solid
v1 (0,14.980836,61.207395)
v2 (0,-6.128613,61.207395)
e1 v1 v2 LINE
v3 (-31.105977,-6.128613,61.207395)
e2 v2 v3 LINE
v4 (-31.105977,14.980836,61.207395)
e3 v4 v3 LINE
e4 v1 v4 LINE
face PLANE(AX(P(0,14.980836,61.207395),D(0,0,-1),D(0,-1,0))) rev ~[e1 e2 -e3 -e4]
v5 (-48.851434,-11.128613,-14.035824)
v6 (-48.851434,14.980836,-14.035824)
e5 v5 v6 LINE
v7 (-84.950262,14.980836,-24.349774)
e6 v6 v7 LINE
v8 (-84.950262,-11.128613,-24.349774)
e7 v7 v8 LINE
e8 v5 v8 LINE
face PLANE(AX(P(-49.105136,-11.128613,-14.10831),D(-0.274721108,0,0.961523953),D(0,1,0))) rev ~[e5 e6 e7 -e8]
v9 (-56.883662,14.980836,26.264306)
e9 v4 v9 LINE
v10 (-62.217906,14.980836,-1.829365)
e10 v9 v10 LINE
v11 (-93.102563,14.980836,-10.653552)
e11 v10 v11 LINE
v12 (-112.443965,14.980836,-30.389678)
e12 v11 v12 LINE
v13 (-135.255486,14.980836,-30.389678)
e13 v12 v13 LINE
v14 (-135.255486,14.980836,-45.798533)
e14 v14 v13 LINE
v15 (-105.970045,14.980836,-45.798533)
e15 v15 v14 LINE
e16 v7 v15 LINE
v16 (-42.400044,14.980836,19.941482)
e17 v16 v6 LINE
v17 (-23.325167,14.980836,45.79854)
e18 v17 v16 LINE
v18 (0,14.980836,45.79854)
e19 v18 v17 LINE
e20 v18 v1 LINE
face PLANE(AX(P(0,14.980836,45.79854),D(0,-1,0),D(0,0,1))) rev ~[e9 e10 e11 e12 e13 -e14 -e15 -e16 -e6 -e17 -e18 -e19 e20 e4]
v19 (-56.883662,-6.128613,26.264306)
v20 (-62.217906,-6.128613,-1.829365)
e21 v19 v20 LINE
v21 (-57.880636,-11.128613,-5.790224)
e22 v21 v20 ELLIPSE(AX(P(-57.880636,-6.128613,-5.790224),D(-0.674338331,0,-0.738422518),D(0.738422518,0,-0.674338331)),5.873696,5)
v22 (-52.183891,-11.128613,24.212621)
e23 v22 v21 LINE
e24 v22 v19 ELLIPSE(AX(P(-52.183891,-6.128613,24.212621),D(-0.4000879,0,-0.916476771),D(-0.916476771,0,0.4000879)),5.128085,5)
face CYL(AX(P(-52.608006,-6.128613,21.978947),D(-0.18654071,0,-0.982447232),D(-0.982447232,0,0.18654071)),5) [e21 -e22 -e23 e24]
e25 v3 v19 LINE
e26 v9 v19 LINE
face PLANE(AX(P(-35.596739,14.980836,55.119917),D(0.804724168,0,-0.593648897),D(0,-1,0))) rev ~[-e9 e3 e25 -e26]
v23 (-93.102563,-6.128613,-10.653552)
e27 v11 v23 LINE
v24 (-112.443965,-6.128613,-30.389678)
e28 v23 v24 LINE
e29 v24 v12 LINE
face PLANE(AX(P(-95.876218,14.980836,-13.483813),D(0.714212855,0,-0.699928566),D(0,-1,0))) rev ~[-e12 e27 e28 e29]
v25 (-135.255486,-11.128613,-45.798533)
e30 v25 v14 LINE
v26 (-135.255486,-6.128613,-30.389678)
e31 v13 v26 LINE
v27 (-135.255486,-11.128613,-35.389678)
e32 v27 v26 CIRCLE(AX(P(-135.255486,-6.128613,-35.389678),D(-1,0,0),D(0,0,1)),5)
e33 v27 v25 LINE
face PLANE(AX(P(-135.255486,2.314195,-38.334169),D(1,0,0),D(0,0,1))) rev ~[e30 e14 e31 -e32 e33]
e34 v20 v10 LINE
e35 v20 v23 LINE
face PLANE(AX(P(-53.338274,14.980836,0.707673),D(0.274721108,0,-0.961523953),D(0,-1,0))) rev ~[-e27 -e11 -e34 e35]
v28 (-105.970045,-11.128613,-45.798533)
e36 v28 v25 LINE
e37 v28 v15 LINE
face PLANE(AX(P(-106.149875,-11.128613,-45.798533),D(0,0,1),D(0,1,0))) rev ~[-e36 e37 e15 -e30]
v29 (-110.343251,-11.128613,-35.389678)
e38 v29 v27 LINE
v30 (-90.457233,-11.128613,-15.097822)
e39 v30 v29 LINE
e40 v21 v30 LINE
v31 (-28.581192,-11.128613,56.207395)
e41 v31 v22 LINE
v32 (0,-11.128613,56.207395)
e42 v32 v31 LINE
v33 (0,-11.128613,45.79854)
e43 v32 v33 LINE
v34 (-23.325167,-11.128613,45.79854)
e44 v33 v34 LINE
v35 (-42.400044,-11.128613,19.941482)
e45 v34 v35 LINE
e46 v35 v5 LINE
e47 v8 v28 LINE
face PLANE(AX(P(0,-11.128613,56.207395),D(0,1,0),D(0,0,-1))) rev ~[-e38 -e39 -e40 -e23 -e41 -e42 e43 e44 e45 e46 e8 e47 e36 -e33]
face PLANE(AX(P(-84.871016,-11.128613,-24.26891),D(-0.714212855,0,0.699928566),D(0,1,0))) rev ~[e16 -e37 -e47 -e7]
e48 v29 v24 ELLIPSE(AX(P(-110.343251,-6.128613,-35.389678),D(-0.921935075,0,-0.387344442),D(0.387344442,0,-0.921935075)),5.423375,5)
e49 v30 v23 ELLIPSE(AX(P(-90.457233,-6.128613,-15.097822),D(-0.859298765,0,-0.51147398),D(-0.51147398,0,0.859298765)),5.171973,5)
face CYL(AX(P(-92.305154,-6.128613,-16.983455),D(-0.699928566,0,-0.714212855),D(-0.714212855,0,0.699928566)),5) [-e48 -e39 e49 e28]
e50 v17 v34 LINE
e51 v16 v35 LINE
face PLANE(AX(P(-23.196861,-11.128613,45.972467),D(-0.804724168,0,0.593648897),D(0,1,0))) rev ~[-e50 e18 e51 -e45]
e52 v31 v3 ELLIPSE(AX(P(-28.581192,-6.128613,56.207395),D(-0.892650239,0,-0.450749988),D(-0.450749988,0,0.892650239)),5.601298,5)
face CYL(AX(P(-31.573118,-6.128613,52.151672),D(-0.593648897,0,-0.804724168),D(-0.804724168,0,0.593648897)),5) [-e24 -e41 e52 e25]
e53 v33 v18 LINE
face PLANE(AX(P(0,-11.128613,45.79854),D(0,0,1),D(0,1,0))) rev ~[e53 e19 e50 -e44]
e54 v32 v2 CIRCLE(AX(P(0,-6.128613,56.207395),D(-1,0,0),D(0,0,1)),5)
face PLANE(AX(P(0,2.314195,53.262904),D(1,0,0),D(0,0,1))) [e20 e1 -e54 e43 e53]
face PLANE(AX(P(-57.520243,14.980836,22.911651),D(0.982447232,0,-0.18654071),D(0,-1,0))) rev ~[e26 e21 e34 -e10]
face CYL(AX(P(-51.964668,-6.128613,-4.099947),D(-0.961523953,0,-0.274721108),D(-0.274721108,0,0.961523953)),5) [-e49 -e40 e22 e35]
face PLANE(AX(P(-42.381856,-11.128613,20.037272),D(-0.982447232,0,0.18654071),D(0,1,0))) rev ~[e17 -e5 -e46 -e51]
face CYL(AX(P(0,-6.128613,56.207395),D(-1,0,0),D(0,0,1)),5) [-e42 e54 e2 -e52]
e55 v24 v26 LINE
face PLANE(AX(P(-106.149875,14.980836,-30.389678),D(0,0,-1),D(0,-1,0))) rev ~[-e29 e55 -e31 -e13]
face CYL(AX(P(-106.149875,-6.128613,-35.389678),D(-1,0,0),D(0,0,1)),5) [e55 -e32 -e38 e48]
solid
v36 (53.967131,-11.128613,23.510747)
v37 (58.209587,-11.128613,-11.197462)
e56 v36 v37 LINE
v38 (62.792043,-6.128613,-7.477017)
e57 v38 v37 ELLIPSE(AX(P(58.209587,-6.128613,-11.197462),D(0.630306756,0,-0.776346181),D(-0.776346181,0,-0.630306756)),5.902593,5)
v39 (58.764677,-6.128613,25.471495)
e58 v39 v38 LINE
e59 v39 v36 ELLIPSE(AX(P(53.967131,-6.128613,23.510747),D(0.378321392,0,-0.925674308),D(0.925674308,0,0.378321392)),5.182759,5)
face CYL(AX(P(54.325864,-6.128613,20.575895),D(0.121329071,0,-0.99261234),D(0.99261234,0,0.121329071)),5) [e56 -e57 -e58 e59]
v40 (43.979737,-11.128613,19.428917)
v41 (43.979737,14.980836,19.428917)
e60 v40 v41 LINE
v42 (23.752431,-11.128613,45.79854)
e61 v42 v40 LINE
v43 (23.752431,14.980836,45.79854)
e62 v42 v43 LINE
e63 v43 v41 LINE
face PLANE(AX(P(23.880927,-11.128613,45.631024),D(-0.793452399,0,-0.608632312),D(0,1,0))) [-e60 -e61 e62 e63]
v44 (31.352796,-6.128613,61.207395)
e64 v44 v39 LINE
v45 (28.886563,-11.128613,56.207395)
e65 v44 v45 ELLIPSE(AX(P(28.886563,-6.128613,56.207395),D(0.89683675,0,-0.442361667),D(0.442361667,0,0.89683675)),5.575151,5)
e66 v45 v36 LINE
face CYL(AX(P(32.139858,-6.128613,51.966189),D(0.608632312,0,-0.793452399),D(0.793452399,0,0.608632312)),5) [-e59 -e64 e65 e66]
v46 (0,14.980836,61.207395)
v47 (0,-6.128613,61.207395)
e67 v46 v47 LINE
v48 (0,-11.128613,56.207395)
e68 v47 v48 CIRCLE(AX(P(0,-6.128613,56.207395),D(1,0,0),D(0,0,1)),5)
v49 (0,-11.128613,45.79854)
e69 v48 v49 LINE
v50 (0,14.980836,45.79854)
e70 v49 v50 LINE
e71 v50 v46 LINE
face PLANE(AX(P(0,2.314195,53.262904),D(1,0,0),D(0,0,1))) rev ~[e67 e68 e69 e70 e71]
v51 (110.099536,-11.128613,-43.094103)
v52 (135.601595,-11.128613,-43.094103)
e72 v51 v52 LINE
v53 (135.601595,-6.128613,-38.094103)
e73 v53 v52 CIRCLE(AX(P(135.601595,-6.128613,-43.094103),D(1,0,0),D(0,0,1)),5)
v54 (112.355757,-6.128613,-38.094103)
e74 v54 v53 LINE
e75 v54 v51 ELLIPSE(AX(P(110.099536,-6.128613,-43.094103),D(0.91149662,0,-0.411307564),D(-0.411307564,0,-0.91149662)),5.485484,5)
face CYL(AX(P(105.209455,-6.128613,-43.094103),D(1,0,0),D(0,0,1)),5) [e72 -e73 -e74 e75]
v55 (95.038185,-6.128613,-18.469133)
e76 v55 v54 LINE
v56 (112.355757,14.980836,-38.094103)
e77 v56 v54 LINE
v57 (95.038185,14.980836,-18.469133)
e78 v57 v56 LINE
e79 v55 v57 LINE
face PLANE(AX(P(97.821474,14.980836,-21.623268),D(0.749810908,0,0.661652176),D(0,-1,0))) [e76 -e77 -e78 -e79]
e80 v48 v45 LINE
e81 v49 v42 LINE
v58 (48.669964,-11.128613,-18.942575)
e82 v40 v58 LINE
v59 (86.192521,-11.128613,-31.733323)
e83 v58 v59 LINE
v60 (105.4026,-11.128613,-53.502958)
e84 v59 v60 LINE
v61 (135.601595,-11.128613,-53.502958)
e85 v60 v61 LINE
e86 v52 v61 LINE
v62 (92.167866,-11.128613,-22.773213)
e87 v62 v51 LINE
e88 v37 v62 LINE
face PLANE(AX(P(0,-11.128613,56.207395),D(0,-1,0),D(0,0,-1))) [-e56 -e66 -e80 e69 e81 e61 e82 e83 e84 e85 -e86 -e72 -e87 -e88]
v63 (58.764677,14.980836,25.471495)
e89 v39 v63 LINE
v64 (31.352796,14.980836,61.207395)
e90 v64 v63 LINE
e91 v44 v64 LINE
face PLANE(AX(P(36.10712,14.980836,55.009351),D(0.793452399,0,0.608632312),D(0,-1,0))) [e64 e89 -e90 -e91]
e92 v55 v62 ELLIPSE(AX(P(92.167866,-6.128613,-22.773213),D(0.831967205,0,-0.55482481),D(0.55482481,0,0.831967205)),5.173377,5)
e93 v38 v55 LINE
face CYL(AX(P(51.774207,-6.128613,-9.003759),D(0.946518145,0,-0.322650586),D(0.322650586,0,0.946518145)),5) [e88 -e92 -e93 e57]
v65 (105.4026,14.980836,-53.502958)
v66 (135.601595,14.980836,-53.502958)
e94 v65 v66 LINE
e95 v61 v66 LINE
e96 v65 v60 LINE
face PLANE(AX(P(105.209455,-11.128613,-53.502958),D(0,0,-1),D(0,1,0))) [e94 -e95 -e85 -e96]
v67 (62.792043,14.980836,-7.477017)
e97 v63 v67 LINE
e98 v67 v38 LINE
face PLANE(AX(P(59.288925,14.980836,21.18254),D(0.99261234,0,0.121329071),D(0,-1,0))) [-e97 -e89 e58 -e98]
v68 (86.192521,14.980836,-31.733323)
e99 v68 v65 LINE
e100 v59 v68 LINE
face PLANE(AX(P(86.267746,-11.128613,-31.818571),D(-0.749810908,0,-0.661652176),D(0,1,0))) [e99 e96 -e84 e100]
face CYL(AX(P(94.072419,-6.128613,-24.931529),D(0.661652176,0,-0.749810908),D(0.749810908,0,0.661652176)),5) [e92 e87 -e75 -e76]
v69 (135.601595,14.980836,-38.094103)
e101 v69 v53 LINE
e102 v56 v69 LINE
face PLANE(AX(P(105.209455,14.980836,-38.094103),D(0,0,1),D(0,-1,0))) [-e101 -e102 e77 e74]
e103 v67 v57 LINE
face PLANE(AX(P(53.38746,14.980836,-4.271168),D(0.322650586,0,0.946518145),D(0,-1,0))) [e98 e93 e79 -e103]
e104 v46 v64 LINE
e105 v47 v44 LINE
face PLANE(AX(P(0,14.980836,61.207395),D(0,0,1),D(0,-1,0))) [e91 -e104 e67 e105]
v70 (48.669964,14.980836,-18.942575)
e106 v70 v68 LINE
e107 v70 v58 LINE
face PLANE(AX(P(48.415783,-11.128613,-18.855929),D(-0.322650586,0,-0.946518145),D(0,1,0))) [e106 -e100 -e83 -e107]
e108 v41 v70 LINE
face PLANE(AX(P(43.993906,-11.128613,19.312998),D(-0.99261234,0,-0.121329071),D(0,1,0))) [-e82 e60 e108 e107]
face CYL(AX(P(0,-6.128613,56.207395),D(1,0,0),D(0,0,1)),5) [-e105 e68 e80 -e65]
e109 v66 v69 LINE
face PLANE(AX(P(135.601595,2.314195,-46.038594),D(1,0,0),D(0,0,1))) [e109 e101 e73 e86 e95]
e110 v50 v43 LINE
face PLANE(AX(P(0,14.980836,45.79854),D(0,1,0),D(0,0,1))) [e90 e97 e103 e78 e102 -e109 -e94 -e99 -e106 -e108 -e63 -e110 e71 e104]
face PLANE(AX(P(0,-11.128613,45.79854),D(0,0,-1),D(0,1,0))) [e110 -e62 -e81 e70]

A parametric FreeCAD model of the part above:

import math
import FreeCAD as App
import Part
import Sketcher
from FreeCAD import Vector

doc = App.newDocument("Part")
body = doc.addObject("PartDesign::Body", "Body")

sketch1 = doc.addObject("Sketcher::SketchObject", "Sketch")
body.addObject(sketch1)
sketch1.AttachmentSupport = (doc.YZ_Plane, [""])
sketch1.MapMode = "FlatFace"
sketch1.addGeometry(Part.LineSegment(Vector(15, 61, 0), Vector(-6, 61, 0)), False)
sketch1.addGeometry(Part.ArcOfCircle(Part.Circle(Vector(-6, 56, 0), Vector(0, 0, 1), 5), math.radians(90), math.radians(180)), False)
sketch1.addGeometry(Part.LineSegment(Vector(-11, 56, 0), Vector(-11, 46, 0)), False)
sketch1.addGeometry(Part.LineSegment(Vector(-11, 46, 0), Vector(15, 46, 0)), False)
sketch1.addGeometry(Part.LineSegment(Vector(15, 46, 0), Vector(15, 61, 0)), False)
sketch1.addConstraint(Sketcher.Constraint("Tangent", 0, 2, 1, 1))
sketch1.addConstraint(Sketcher.Constraint("Tangent", 1, 2, 2, 1))
sketch1.addConstraint(Sketcher.Constraint("Coincident", 2, 2, 3, 1))
sketch1.addConstraint(Sketcher.Constraint("Coincident", 3, 2, 4, 1))
sketch1.addConstraint(Sketcher.Constraint("Coincident", 4, 2, 0, 1))
sketch1.addConstraint(Sketcher.Constraint("Horizontal", 0))
sketch1.addConstraint(Sketcher.Constraint("Vertical", 2))
sketch1.addConstraint(Sketcher.Constraint("Horizontal", 3))
sketch1.addConstraint(Sketcher.Constraint("Vertical", 4))
sketch1.addConstraint(Sketcher.Constraint("Radius", 1, 5.0))
sketch1.addConstraint(Sketcher.Constraint("DistanceX", 0, 2, 0, 1, 21.109449))
sketch1.addConstraint(Sketcher.Constraint("DistanceY", 2, 2, 2, 1, 10.408855))
sketch1.addConstraint(Sketcher.Constraint("DistanceY", -1, 1, 2, 2, 45.79854))
sketch1.addConstraint(Sketcher.Constraint("DistanceX", 1, 3, -1, 1, 6.128613))

sketch2 = doc.addObject("Sketcher::SketchObject", "Sketch001")
body.addObject(sketch2)
sketch2.AttachmentSupport = (doc.XZ_Plane, [""])
sketch2.MapMode = "FlatFace"
sketch2.addGeometry(Part.LineSegment(Vector(0, 46, 0), Vector(-24, 46, 0)), False)
sketch2.addGeometry(Part.LineSegment(Vector(-24, 46, 0), Vector(-43, 20, 0)), False)
sketch2.addGeometry(Part.LineSegment(Vector(-43, 20, 0), Vector(-49, -14, 0)), False)
sketch2.addGeometry(Part.LineSegment(Vector(-49, -14, 0), Vector(-85, -24, 0)), False)
sketch2.addGeometry(Part.LineSegment(Vector(-85, -24, 0), Vector(-106, -45, 0)), False)
sketch2.addGeometry(Part.LineSegment(Vector(-106, -45, 0), Vector(-135, -45, 0)), False)
sketch2.addConstraint(Sketcher.Constraint("Coincident", 0, 2, 1, 1))
sketch2.addConstraint(Sketcher.Constraint("Coincident", 1, 2, 2, 1))
sketch2.addConstraint(Sketcher.Constraint("Coincident", 2, 2, 3, 1))
sketch2.addConstraint(Sketcher.Constraint("Coincident", 3, 2, 4, 1))
sketch2.addConstraint(Sketcher.Constraint("Coincident", 4, 2, 5, 1))
sketch2.addConstraint(Sketcher.Constraint("Horizontal", 0))
sketch2.addConstraint(Sketcher.Constraint("Horizontal", 5))
sketch2.addConstraint(Sketcher.Constraint("PointOnObject", 0, 1, -2))
sketch2.addConstraint(Sketcher.Constraint("DistanceX", 0, 2, 0, 1, 23.5413))
sketch2.addConstraint(Sketcher.Constraint("DistanceX", 5, 2, 5, 1, 29.105611))
sketch2.addConstraint(Sketcher.Constraint("Distance", 1, 32.445211))
sketch2.addConstraint(Sketcher.Constraint("DistanceY", -1, 1, 0, 1, 46.226561))
sketch2.addConstraint(Sketcher.Constraint("DistanceY", 2, 2, -1, 1, 13.696758))
sketch2.addConstraint(Sketcher.Constraint("DistanceY", 4, 2, -1, 1, 45.370512))
sketch2.addConstraint(Sketcher.Constraint("DistanceX", 2, 2, 1, 2, 6.420359))
sketch2.addConstraint(Sketcher.Constraint("DistanceX", 3, 2, 2, 2, 35.953991))
sketch2.addConstraint(Sketcher.Constraint("DistanceY", 3, 2, 2, 2, 10.272568))
sketch2.addConstraint(Sketcher.Constraint("DistanceY", 3, 2, 1, 2, 44.086441))
sketch2.addConstraint(Sketcher.Constraint("DistanceX", 4, 2, 3, 2, 20.973161))
doc.recompute()

additivepipe = doc.addObject("PartDesign::AdditivePipe", "AdditivePipe")
body.addObject(additivepipe)
additivepipe.Profile = sketch1
additivepipe.Spine = (sketch2, ["Edge1", "Edge2", "Edge3", "Edge4", "Edge5", "Edge6"])
additivepipe.Transition = "Right corner"
body2 = doc.addObject("PartDesign::Body", "Body001")

sketch3 = doc.addObject("Sketcher::SketchObject", "Sketch002")
body2.addObject(sketch3)
sketch3.AttachmentSupport = (doc.getObject("YZ_Plane001"), [""])
sketch3.MapMode = "FlatFace"
sketch3.addGeometry(Part.LineSegment(Vector(15, 61, 0), Vector(-6, 61, 0)), False)
sketch3.addGeometry(Part.ArcOfCircle(Part.Circle(Vector(-6, 56, 0), Vector(0, 0, 1), 5), math.radians(90), math.radians(180)), False)
sketch3.addGeometry(Part.LineSegment(Vector(-11, 56, 0), Vector(-11, 46, 0)), False)
sketch3.addGeometry(Part.LineSegment(Vector(-11, 46, 0), Vector(15, 46, 0)), False)
sketch3.addGeometry(Part.LineSegment(Vector(15, 46, 0), Vector(15, 61, 0)), False)
sketch3.addConstraint(Sketcher.Constraint("Tangent", 0, 2, 1, 1))
sketch3.addConstraint(Sketcher.Constraint("Tangent", 1, 2, 2, 1))
sketch3.addConstraint(Sketcher.Constraint("Coincident", 2, 2, 3, 1))
sketch3.addConstraint(Sketcher.Constraint("Coincident", 3, 2, 4, 1))
sketch3.addConstraint(Sketcher.Constraint("Coincident", 4, 2, 0, 1))
sketch3.addConstraint(Sketcher.Constraint("Horizontal", 0))
sketch3.addConstraint(Sketcher.Constraint("Vertical", 2))
sketch3.addConstraint(Sketcher.Constraint("Horizontal", 3))
sketch3.addConstraint(Sketcher.Constraint("Vertical", 4))
sketch3.addConstraint(Sketcher.Constraint("Radius", 1, 5.0))
sketch3.addConstraint(Sketcher.Constraint("DistanceX", 0, 2, 0, 1, 21.109449))
sketch3.addConstraint(Sketcher.Constraint("DistanceY", 2, 2, 2, 1, 10.408855))
sketch3.addConstraint(Sketcher.Constraint("DistanceY", -1, 1, 2, 2, 45.79854))
sketch3.addConstraint(Sketcher.Constraint("DistanceX", 1, 3, -1, 1, 6.128613))

sketch4 = doc.addObject("Sketcher::SketchObject", "Sketch003")
body2.addObject(sketch4)
sketch4.AttachmentSupport = (doc.getObject("XZ_Plane001"), [""])
sketch4.MapMode = "FlatFace"
sketch4.addGeometry(Part.LineSegment(Vector(0, 45, 0), Vector(24, 45, 0)), False)
sketch4.addGeometry(Part.LineSegment(Vector(24, 45, 0), Vector(44, 19, 0)), False)
sketch4.addGeometry(Part.LineSegment(Vector(44, 19, 0), Vector(48, -19, 0)), False)
sketch4.addGeometry(Part.LineSegment(Vector(48, -19, 0), Vector(86, -32, 0)), False)
sketch4.addGeometry(Part.LineSegment(Vector(86, -32, 0), Vector(105, -54, 0)), False)
sketch4.addGeometry(Part.LineSegment(Vector(105, -54, 0), Vector(136, -54, 0)), False)
sketch4.addConstraint(Sketcher.Constraint("Coincident", 0, 2, 1, 1))
sketch4.addConstraint(Sketcher.Constraint("Coincident", 1, 2, 2, 1))
sketch4.addConstraint(Sketcher.Constraint("Coincident", 2, 2, 3, 1))
sketch4.addConstraint(Sketcher.Constraint("Coincident", 3, 2, 4, 1))
sketch4.addConstraint(Sketcher.Constraint("Coincident", 4, 2, 5, 1))
sketch4.addConstraint(Sketcher.Constraint("Horizontal", 0))
sketch4.addConstraint(Sketcher.Constraint("Horizontal", 5))
sketch4.addConstraint(Sketcher.Constraint("PointOnObject", 0, 1, -2))
sketch4.addConstraint(Sketcher.Constraint("DistanceX", 5, 1, 5, 2, 30.39214))
sketch4.addConstraint(Sketcher.Constraint("DistanceX", 0, 2, 3, 2, 62.405499))
sketch4.addConstraint(Sketcher.Constraint("DistanceY", 4, 2, 0, 2, 99.301498))
sketch4.addConstraint(Sketcher.Constraint("Distance", 2, 38.808838))
sketch4.addConstraint(Sketcher.Constraint("DistanceX", 0, 1, 0, 2, 23.541307))
sketch4.addConstraint(Sketcher.Constraint("DistanceY", -1, 1, 0, 1, 45.370512))
sketch4.addConstraint(Sketcher.Constraint("DistanceX", -1, 1, 1, 2, 43.56904))
sketch4.addConstraint(Sketcher.Constraint("DistanceX", -1, 1, 2, 2, 48.27768))
sketch4.addConstraint(Sketcher.Constraint("DistanceY", 3, 2, 2, 2, 12.840711))
sketch4.addConstraint(Sketcher.Constraint("DistanceY", 3, 2, 0, 2, 77.472288))
sketch4.addConstraint(Sketcher.Constraint("DistanceX", 3, 2, 4, 2, 19.262649))
doc.recompute()

additivepipe2 = doc.addObject("PartDesign::AdditivePipe", "AdditivePipe001")
body2.addObject(additivepipe2)
additivepipe2.Profile = sketch3
additivepipe2.Spine = (sketch4, ["Edge1", "Edge2", "Edge3", "Edge4", "Edge5", "Edge6"])
additivepipe2.Transition = "Right corner"

doc.recompute()
